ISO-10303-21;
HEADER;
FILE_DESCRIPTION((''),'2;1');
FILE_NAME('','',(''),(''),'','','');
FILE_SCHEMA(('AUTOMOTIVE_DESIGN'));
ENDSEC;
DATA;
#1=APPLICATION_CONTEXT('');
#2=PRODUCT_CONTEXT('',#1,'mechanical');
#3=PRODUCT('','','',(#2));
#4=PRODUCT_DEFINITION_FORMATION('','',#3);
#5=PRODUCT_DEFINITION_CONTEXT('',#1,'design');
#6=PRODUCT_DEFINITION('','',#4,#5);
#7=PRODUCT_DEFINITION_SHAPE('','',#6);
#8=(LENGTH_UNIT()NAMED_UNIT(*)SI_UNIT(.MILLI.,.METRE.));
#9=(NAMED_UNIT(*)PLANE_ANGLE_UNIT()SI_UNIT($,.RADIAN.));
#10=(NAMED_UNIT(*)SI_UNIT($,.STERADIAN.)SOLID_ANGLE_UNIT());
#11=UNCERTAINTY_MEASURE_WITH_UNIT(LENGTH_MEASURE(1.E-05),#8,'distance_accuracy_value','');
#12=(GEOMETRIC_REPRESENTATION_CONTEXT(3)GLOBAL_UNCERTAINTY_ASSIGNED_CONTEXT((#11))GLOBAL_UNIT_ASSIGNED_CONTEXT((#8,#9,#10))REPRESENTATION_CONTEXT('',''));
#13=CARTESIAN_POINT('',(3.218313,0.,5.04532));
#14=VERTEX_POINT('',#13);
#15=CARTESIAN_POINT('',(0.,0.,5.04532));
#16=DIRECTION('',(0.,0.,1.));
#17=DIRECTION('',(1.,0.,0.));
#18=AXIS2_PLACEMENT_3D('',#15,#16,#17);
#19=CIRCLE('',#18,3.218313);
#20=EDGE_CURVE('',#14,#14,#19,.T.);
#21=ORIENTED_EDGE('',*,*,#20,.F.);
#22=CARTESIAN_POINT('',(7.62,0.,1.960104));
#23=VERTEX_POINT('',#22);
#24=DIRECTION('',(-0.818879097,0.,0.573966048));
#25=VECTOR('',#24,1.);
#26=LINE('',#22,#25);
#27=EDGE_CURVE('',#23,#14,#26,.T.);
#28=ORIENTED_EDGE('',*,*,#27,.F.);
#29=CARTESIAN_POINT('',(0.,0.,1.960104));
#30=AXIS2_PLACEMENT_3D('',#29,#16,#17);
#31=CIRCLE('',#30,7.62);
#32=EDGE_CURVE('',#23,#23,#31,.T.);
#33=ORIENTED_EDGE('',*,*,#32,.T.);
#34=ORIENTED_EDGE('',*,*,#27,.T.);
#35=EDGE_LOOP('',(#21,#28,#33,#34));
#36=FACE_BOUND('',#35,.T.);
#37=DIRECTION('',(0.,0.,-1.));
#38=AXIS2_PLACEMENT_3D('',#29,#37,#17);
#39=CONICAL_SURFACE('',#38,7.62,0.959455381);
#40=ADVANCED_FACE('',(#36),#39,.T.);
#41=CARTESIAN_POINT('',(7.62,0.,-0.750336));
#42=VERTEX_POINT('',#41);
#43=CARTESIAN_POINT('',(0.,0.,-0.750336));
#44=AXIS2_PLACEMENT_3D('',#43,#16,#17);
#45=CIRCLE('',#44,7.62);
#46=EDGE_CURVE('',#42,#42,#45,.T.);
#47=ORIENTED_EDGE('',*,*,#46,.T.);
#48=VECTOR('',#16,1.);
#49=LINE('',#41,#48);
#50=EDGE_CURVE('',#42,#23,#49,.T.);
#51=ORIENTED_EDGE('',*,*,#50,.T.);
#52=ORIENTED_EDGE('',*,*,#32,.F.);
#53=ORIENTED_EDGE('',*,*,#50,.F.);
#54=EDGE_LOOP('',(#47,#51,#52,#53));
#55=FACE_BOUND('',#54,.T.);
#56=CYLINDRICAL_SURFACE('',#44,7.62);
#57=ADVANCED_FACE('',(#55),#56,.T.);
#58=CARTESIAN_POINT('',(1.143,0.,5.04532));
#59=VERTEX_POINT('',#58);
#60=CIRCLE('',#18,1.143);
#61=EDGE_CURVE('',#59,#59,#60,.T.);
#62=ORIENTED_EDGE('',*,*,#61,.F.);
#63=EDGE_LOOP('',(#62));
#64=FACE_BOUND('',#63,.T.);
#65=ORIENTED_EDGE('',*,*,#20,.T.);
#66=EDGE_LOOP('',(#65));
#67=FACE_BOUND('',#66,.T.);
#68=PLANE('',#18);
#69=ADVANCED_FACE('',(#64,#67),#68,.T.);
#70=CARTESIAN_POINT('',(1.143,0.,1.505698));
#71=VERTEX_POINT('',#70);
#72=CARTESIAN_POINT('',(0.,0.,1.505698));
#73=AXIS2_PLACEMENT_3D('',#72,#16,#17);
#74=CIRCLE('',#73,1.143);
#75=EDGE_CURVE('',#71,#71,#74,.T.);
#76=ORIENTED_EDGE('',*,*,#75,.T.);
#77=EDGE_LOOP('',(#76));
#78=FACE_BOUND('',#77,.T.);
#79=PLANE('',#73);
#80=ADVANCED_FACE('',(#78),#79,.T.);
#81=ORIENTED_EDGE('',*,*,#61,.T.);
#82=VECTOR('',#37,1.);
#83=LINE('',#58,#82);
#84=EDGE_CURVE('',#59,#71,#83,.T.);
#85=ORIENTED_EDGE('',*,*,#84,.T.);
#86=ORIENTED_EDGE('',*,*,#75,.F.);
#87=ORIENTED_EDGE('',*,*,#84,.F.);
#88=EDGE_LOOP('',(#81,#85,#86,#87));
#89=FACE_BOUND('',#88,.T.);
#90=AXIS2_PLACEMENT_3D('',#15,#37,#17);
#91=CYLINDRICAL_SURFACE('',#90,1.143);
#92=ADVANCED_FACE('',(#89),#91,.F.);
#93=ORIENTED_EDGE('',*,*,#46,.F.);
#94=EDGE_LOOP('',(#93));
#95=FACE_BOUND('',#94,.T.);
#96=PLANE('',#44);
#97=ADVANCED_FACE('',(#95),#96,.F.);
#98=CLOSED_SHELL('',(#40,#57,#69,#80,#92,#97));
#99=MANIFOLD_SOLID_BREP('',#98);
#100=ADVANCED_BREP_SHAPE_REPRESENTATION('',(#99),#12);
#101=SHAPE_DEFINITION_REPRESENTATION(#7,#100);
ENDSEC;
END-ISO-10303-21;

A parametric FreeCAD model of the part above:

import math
import FreeCAD as App
import Part
import Sketcher
from FreeCAD import Vector
Q = App.Units.Quantity

doc = App.newDocument("Part")
params = doc.addObject("Spreadsheet::Sheet", "Params")
for row, (alias, value) in enumerate([
    ("sketch1_width", "0.045 in"),
    ("revolution_angle", "360 deg"),
    ("revolution2_angle", "360 deg"),
], start=1):
    params.set(f"A{row}", alias)
    params.set(f"B{row}", "=" + value)
    params.setAlias(f"B{row}", alias)

body = doc.addObject("PartDesign::Body", "Body")

# Sketch on XZ plane
sketch1 = doc.addObject("Sketcher::SketchObject", "Sketch")
body.addObject(sketch1)
sketch1.AttachmentSupport = (doc.XZ_Plane, [""])
sketch1.MapMode = "FlatFace"
sketch1.addGeometry(Part.LineSegment(Vector(0, 1.5, 0), Vector(0, 0, 0)), False)
sketch1.addGeometry(Part.ArcOfCircle(Part.Circle(Vector(0, -26.9, 0), Vector(0, 0, 1), 26.9), math.radians(76.44), math.radians(90)), False)
sketch1.addGeometry(Part.LineSegment(Vector(6.3, -0.8, 0), Vector(7.6, -0.8, 0)), False)
sketch1.addGeometry(Part.LineSegment(Vector(7.6, -0.8, 0), Vector(7.6, 2, 0)), False)
sketch1.addGeometry(Part.LineSegment(Vector(7.6, 2, 0), Vector(3.2, 5, 0)), False)
sketch1.addGeometry(Part.LineSegment(Vector(3.2, 5, 0), Vector(1.1, 5, 0)), False)
sketch1.addGeometry(Part.LineSegment(Vector(1.1, 5, 0), Vector(1.1, 1.5, 0)), False)
sketch1.addGeometry(Part.LineSegment(Vector(1.1, 1.5, 0), Vector(0, 1.5, 0)), False)
sketch1.addConstraint(Sketcher.Constraint("Coincident", 0, 2, 1, 2))
sketch1.addConstraint(Sketcher.Constraint("Coincident", 1, 1, 2, 1))
sketch1.addConstraint(Sketcher.Constraint("Coincident", 2, 2, 3, 1))
sketch1.addConstraint(Sketcher.Constraint("Coincident", 3, 2, 4, 1))
sketch1.addConstraint(Sketcher.Constraint("Coincident", 4, 2, 5, 1))
sketch1.addConstraint(Sketcher.Constraint("Coincident", 5, 2, 6, 1))
sketch1.addConstraint(Sketcher.Constraint("Coincident", 6, 2, 7, 1))
sketch1.addConstraint(Sketcher.Constraint("Coincident", 7, 2, 0, 1))
sketch1.addConstraint(Sketcher.Constraint("Vertical", 0))
sketch1.addConstraint(Sketcher.Constraint("Horizontal", 2))
sketch1.addConstraint(Sketcher.Constraint("Vertical", 3))
sketch1.addConstraint(Sketcher.Constraint("Horizontal", 5))
sketch1.addConstraint(Sketcher.Constraint("Vertical", 6))
sketch1.addConstraint(Sketcher.Constraint("Horizontal", 7))
sketch1.addConstraint(Sketcher.Constraint("Coincident", 0, 2, -1, 1))
sketch1.addConstraint(Sketcher.Constraint("DistanceX", -1, 1, 2, 2, Q("0.3 in")))
sketch1.addConstraint(Sketcher.Constraint("DistanceX", 7, 2, 7, 1, Q("0.045 in")))
sketch1.addConstraint(Sketcher.Constraint("Radius", 1, Q("26.907261 mm")))
sketch1.addConstraint(Sketcher.Constraint("DistanceY", 1, 3, 1, 1, Q("1.0298002 in")))
sketch1.addConstraint(Sketcher.Constraint("DistanceY", 3, 1, 3, 2, Q("2.71044 mm")))
sketch1.addConstraint(Sketcher.Constraint("Distance", 4, Q("5.375259 mm")))
sketch1.addConstraint(Sketcher.Constraint("DistanceX", 2, 1, 2, 2, Q("1.310003 mm")))
sketch1.addConstraint(Sketcher.Constraint("DistanceX", 5, 2, 5, 1, Q("2.075313 mm")))
sketch1.addConstraint(Sketcher.Constraint("DistanceY", 0, 2, 0, 1, Q("1.505698 mm")))
sketch1.setExpression("Constraints[16]", "Params.sketch1_width")
revolution = doc.addObject("PartDesign::Revolution", "Revolution")
body.addObject(revolution)
revolution.Profile = sketch1
revolution.ReferenceAxis = (sketch1, ["V_Axis"])
revolution.setExpression("Angle", "Params.revolution_angle")

# Sketch on XZ plane
sketch2 = doc.addObject("Sketcher::SketchObject", "Sketch001")
body.addObject(sketch2)
sketch2.AttachmentSupport = (doc.XZ_Plane, [""])
sketch2.MapMode = "FlatFace"
sketch2.addGeometry(Part.ArcOfCircle(Part.Circle(Vector(0, -26.9, 0), Vector(0, 0, 1), 26.9), math.radians(76.44), math.radians(90)), False)
sketch2.addGeometry(Part.LineSegment(Vector(0, 0, 0), Vector(0, -0.8, 0)), False)
sketch2.addGeometry(Part.LineSegment(Vector(0, -0.8, 0), Vector(6.3, -0.8, 0)), False)
sketch2.addConstraint(Sketcher.Constraint("Coincident", 0, 2, 1, 1))
sketch2.addConstraint(Sketcher.Constraint("Coincident", 1, 2, 2, 1))
sketch2.addConstraint(Sketcher.Constraint("Coincident", 2, 2, 0, 1))
sketch2.addConstraint(Sketcher.Constraint("Vertical", 1))
sketch2.addConstraint(Sketcher.Constraint("Horizontal", 2))
sketch2.addConstraint(Sketcher.Constraint("Coincident", 0, 2, -1, 1))
sketch2.addConstraint(Sketcher.Constraint("Radius", 0, Q("26.907261 mm")))
sketch2.addConstraint(Sketcher.Constraint("DistanceY", 0, 3, 1, 2, Q("1.0298002 in")))
sketch2.addConstraint(Sketcher.Constraint("DistanceX", 2, 1, 2, 2, Q("6.309997 mm")))
revolution2 = doc.addObject("PartDesign::Revolution", "Revolution001")
body.addObject(revolution2)
revolution2.Profile = sketch2
revolution2.ReferenceAxis = (sketch2, ["V_Axis"])
revolution2.setExpression("Angle", "Params.revolution2_angle")

doc.recompute()
